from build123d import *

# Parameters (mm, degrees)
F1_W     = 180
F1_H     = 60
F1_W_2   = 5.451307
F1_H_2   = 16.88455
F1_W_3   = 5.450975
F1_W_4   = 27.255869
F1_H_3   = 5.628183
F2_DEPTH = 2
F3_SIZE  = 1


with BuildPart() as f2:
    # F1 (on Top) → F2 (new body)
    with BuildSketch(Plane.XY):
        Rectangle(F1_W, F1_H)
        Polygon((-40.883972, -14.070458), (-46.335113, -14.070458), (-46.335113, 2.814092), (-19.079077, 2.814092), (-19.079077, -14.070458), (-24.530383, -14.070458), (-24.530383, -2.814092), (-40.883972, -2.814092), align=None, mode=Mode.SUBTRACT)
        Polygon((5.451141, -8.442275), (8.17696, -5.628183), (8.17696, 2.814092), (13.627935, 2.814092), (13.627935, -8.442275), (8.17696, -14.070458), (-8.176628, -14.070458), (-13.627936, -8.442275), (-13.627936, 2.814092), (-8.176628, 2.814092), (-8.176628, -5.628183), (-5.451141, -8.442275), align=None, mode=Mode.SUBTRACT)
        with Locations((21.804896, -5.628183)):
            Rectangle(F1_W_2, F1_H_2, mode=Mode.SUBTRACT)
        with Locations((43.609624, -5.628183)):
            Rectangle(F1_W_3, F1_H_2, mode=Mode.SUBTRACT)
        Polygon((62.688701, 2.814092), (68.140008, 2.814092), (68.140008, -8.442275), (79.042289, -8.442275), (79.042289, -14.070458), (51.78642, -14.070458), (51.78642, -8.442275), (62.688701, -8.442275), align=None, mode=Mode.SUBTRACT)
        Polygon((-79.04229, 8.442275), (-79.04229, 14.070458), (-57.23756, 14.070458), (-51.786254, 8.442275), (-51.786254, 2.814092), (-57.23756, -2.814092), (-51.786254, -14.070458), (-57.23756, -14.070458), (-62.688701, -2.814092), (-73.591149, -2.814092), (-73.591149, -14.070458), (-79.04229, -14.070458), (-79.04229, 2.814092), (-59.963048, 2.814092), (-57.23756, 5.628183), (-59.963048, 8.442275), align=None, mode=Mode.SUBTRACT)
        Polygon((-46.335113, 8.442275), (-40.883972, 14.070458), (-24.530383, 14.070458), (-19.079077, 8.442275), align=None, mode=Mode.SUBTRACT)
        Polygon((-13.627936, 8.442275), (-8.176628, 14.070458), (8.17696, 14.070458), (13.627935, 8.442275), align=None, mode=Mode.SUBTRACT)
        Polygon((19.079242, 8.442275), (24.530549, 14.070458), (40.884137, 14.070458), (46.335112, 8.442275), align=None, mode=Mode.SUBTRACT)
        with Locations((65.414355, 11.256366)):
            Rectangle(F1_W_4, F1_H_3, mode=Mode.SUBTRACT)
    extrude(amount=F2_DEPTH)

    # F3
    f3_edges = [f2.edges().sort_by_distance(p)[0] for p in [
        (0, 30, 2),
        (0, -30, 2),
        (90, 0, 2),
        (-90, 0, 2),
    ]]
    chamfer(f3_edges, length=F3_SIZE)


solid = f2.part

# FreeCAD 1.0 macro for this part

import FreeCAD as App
import Part
import Sketcher
from FreeCAD import Vector
Q = App.Units.Quantity


def edges_at(feature, points):
    """Names of the edges that pass closest to the given points."""
    edges = feature.Shape.Edges
    near = lambda p: min(range(len(edges)), key=lambda i: edges[i].distToShape(Part.Vertex(*p))[0])
    return sorted({f"Edge{near(p) + 1}" for p in points})


def add_polygon(sketch, points):
    """Adds a closed chain of lines whose ends are joined by coincident constraints."""
    first, n = sketch.GeometryCount, len(points)
    for a, b in zip(points, points[1:] + points[:1]):
        sketch.addGeometry(Part.LineSegment(App.Vector(*a, 0), App.Vector(*b, 0)), False)
    for i in range(n):
        sketch.addConstraint(Sketcher.Constraint("Coincident", first + i, 2, first + (i + 1) % n, 1))

doc = App.newDocument("Part")
body = doc.addObject("PartDesign::Body", "Body")

sketch1 = body.newObject("Sketcher::SketchObject", "Sketch")
sketch1.AttachmentSupport = (doc.getObject("XY_Plane"), [""])
sketch1.MapMode = "FlatFace"
add_polygon(sketch1, [(-90, 30), (-90, -30), (90, -30), (90, 30)])
add_polygon(sketch1, [(-60, 8.4), (-79, 8.4), (-79, 14.1), (-57.2, 14.1), (-51.8, 8.4), (-51.8, 2.8), (-57.2, -2.8), (-51.8, -14.1), (-57.2, -14.1), (-62.7, -2.8), (-73.6, -2.8), (-73.6, -14.1), (-79, -14.1), (-79, 2.8), (-60, 2.8), (-57.2, 5.6)])
add_polygon(sketch1, [(-40.9, -2.8), (-40.9, -14.1), (-46.3, -14.1), (-46.3, 2.8), (-19.1, 2.8), (-19.1, -14.1), (-24.5, -14.1), (-24.5, -2.8)])
add_polygon(sketch1, [(-5.5, -8.4), (5.5, -8.4), (8.2, -5.6), (8.2, 2.8), (13.6, 2.8), (13.6, -8.4), (8.2, -14.1), (-8.2, -14.1), (-13.6, -8.4), (-13.6, 2.8), (-8.2, 2.8), (-8.2, -5.6)])
add_polygon(sketch1, [(24.5, -14.1), (19.1, -14.1), (19.1, 2.8), (24.5, 2.8)])
add_polygon(sketch1, [(46.3, -14.1), (40.9, -14.1), (40.9, 2.8), (46.3, 2.8)])
add_polygon(sketch1, [(62.7, -8.4), (62.7, 2.8), (68.1, 2.8), (68.1, -8.4), (79, -8.4), (79, -14.1), (51.8, -14.1), (51.8, -8.4)])
add_polygon(sketch1, [(-19.1, 8.4), (-46.3, 8.4), (-40.9, 14.1), (-24.5, 14.1)])
add_polygon(sketch1, [(13.6, 8.4), (-13.6, 8.4), (-8.2, 14.1), (8.2, 14.1)])
add_polygon(sketch1, [(46.3, 8.4), (19.1, 8.4), (24.5, 14.1), (40.9, 14.1)])
add_polygon(sketch1, [(79, 8.4), (51.8, 8.4), (51.8, 14.1), (79, 14.1)])
sketch1.addConstraint([
    Sketcher.Constraint("Vertical", 0),
    Sketcher.Constraint("Horizontal", 1),
    Sketcher.Constraint("Vertical", 2),
    Sketcher.Constraint("Horizontal", 3),
    Sketcher.Constraint("Horizontal", 4),
    Sketcher.Constraint("Vertical", 5),
    Sketcher.Constraint("Horizontal", 6),
    Sketcher.Constraint("Vertical", 8),
    Sketcher.Constraint("Horizontal", 11),
    Sketcher.Constraint("Horizontal", 13),
    Sketcher.Constraint("Vertical", 14),
    Sketcher.Constraint("Horizontal", 15),
    Sketcher.Constraint("Vertical", 16),
    Sketcher.Constraint("Horizontal", 17),
    Sketcher.Constraint("Vertical", 20),
    Sketcher.Constraint("Horizontal", 21),
    Sketcher.Constraint("Vertical", 22),
    Sketcher.Constraint("Horizontal", 23),
    Sketcher.Constraint("Vertical", 24),
    Sketcher.Constraint("Horizontal", 25),
    Sketcher.Constraint("Vertical", 26),
    Sketcher.Constraint("Horizontal", 27),
    Sketcher.Constraint("Horizontal", 28),
    Sketcher.Constraint("Vertical", 30),
    Sketcher.Constraint("Horizontal", 31),
    Sketcher.Constraint("Vertical", 32),
    Sketcher.Constraint("Horizontal", 34),
    Sketcher.Constraint("Vertical", 36),
    Sketcher.Constraint("Horizontal", 37),
    Sketcher.Constraint("Vertical", 38),
    Sketcher.Constraint("Horizontal", 40),
    Sketcher.Constraint("Vertical", 41),
    Sketcher.Constraint("Horizontal", 42),
    Sketcher.Constraint("Vertical", 43),
    Sketcher.Constraint("Horizontal", 44),
    Sketcher.Constraint("Vertical", 45),
    Sketcher.Constraint("Horizontal", 46),
    Sketcher.Constraint("Vertical", 47),
    Sketcher.Constraint("Vertical", 48),
    Sketcher.Constraint("Horizontal", 49),
    Sketcher.Constraint("Vertical", 50),
    Sketcher.Constraint("Horizontal", 51),
    Sketcher.Constraint("Vertical", 52),
    Sketcher.Constraint("Horizontal", 53),
    Sketcher.Constraint("Vertical", 54),
    Sketcher.Constraint("Horizontal", 55),
    Sketcher.Constraint("Horizontal", 56),
    Sketcher.Constraint("Horizontal", 58),
    Sketcher.Constraint("Horizontal", 60),
    Sketcher.Constraint("Horizontal", 62),
    Sketcher.Constraint("Horizontal", 64),
    Sketcher.Constraint("Horizontal", 66),
    Sketcher.Constraint("Horizontal", 68),
    Sketcher.Constraint("Vertical", 69),
    Sketcher.Constraint("Horizontal", 70),
    Sketcher.Constraint("Vertical", 71),
    Sketcher.Constraint("Symmetric", 0, 2, 2, 2, -1, 1),
    Sketcher.Constraint("Symmetric", 12, 2, 48, 2, -1, 1),
    Sketcher.Constraint("Symmetric", 4, 2, 51, 2, -1, 1),
    Sketcher.Constraint("Symmetric", 32, 2, 60, 2, -1, 1),
    Sketcher.Constraint("Symmetric", 35, 2, 63, 2, -1, 1),
    Sketcher.Constraint("Symmetric", 15, 2, 70, 2, -1, 1),
    Sketcher.Constraint("Symmetric", 31, 2, 36, 2, -2),
    Sketcher.Constraint("Symmetric", 22, 2, 46, 2, -2),
    Sketcher.Constraint("Symmetric", 15, 2, 52, 2, -2),
    Sketcher.Constraint("Symmetric", 56, 2, 67, 2, -2),
    Sketcher.Constraint("Symmetric", 6, 2, 11, 2, -1),
    Sketcher.Constraint("Symmetric", 20, 2, 57, 2, -1),
    Sketcher.Constraint("Symmetric", 25, 2, 58, 2, -1),
    Sketcher.Constraint("Symmetric", 34, 2, 61, 2, -1),
    Sketcher.Constraint("Symmetric", 43, 2, 65, 2, -1),
    Sketcher.Constraint("Symmetric", 44, 2, 66, 2, -1),
    Sketcher.Constraint("Symmetric", 54, 2, 68, 2, -1),
    Sketcher.Constraint("Parallel", 18, 33),
    Sketcher.Constraint("Parallel", 7, 35),
    Sketcher.Constraint("Parallel", 19, 39),
    Sketcher.Constraint("Parallel", 35, 59),
    Sketcher.Constraint("Parallel", 9, 61),
    Sketcher.Constraint("Parallel", 39, 63),
    Sketcher.Constraint("Parallel", 61, 65),
    Sketcher.Constraint("Parallel", 63, 67),
    Sketcher.Constraint("Horizontal", 4, 2, 7, 2),
    Sketcher.Constraint("Horizontal", 9, 2, 12, 2),
    Sketcher.Constraint("Horizontal", 11, 2, 14, 2),
    Sketcher.Constraint("Horizontal", 8, 2, 16, 2),
    Sketcher.Constraint("Horizontal", 15, 2, 20, 2),
    Sketcher.Constraint("Horizontal", 17, 2, 22, 2),
    Sketcher.Constraint("Horizontal", 13, 2, 26, 2),
    Sketcher.Constraint("Horizontal", 23, 2, 30, 2),
    Sketcher.Constraint("Horizontal", 28, 2, 32, 2),
    Sketcher.Constraint("Horizontal", 25, 2, 33, 2),
    Sketcher.Constraint("Horizontal", 29, 2, 38, 2),
    Sketcher.Constraint("Horizontal", 34, 2, 40, 2),
    Sketcher.Constraint("Horizontal", 37, 2, 41, 2),
    Sketcher.Constraint("Horizontal", 46, 2, 48, 2),
    Sketcher.Constraint("Horizontal", 39, 2, 50, 2),
    Sketcher.Constraint("Horizontal", 51, 2, 54, 2),
    Sketcher.Constraint("Horizontal", 19, 2, 56, 2),
    Sketcher.Constraint("Vertical", 6, 2, 9, 2),
    Sketcher.Constraint("Vertical", 8, 2, 10, 2),
    Sketcher.Constraint("Vertical", 11, 2, 18, 2),
    Sketcher.Constraint("Vertical", 17, 2, 19, 2),
    Sketcher.Constraint("Vertical", 30, 2, 33, 2),
    Sketcher.Constraint("Vertical", 34, 2, 37, 2),
    Sketcher.Constraint("Vertical", 22, 2, 56, 2),
    Sketcher.Constraint("Vertical", 24, 2, 59, 2),
    Sketcher.Constraint("Vertical", 33, 2, 62, 2),
    Sketcher.Constraint("Vertical", 41, 2, 64, 2),
    Sketcher.Constraint("Equal", 15, 21),
    Sketcher.Constraint("Equal", 27, 34),
    Sketcher.Constraint("Equal", 42, 49),
    Sketcher.Constraint("Equal", 28, 51),
    Sketcher.Constraint("Equal", 51, 55),
    Sketcher.Constraint("Equal", 60, 64),
    Sketcher.Constraint("Equal", 64, 68),
    Sketcher.Constraint("Equal", 5, 8),
    Sketcher.Constraint("Equal", 19, 39),
    Sketcher.Constraint("DistanceX", 1, 1, 1, 2, Q("180 mm")),
    Sketcher.Constraint("DistanceY", 0, 2, 0, 1, Q("60 mm")),
    Sketcher.Constraint("Distance", 10, Q("12.506899 mm")),
    Sketcher.Constraint("DistanceX", 4, 2, 4, 1, Q("19.079242 mm")),
    Sketcher.Constraint("DistanceX", 6, 1, 6, 2, Q("21.80473 mm")),
    Sketcher.Constraint("DistanceX", 15, 2, 15, 1, Q("5.451141 mm")),
    Sketcher.Constraint("DistanceX", 27, 2, 27, 1, Q("16.353589 mm")),
    Sketcher.Constraint("DistanceX", 37, 1, 37, 2, Q("5.451308 mm")),
    Sketcher.Constraint("DistanceX", 12, 2, -1, 1, Q("62.688701 mm")),
    Sketcher.Constraint("DistanceX", -1, 1, 42, 2, Q("24.530549 mm")),
])
pad1 = body.newObject("PartDesign::Pad", "Pad")
pad1.Profile = sketch1
pad1.Length = 2
doc.recompute()

chamfer = body.newObject("PartDesign::Chamfer", "Chamfer")
chamfer.Base = (pad1, edges_at(pad1, [
    (0, 30, 2),
    (0, -30, 2),
    (90, 0, 2),
    (-90, 0, 2),
]))
chamfer.Size = 1

doc.recompute()
